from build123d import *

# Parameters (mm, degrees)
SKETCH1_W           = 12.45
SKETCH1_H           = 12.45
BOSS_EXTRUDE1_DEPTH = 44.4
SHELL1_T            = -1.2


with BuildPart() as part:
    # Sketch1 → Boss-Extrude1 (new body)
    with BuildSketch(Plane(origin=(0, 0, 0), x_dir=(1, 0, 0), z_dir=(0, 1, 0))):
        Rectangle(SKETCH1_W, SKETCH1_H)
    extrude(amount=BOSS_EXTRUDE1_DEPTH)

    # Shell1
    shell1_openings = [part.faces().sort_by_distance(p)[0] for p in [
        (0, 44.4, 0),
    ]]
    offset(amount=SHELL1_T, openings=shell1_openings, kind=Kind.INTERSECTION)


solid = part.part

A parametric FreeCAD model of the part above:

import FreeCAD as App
import Part
import Sketcher

V = App.Vector


def faces_at(feature, points):
    """Names of the faces that lie closest to the given points."""
    faces = feature.Shape.Faces
    near = lambda p: min(range(len(faces)), key=lambda i: faces[i].distToShape(Part.Vertex(*p))[0])
    return sorted({f"Face{near(p) + 1}" for p in points})

doc = App.newDocument("Part")
body = doc.addObject("PartDesign::Body", "Body")

# Sketch on XZ plane
sketch1 = body.newObject("Sketcher::SketchObject", "Sketch")
sketch1.AttachmentSupport = (doc.getObject("XZ_Plane"), [""])
sketch1.MapMode = "FlatFace"
sketch1.addGeometry([
    Part.LineSegment(V(-6, -6, 0), V(-6, 6, 0)),
    Part.LineSegment(V(-6, 6, 0), V(6, 6, 0)),
    Part.LineSegment(V(6, 6, 0), V(6, -6, 0)),
    Part.LineSegment(V(6, -6, 0), V(-6, -6, 0)),
], False)
sketch1.addConstraint([
    Sketcher.Constraint("Coincident", 0, 2, 1, 1),
    Sketcher.Constraint("Coincident", 1, 2, 2, 1),
    Sketcher.Constraint("Coincident", 2, 2, 3, 1),
    Sketcher.Constraint("Coincident", 3, 2, 0, 1),
    Sketcher.Constraint("Vertical", 0),
    Sketcher.Constraint("Horizontal", 1),
    Sketcher.Constraint("Vertical", 2),
    Sketcher.Constraint("Horizontal", 3),
    Sketcher.Constraint("Symmetric", 0, 2, 2, 2, -1, 1),
    Sketcher.Constraint("Equal", 3, 0),
    Sketcher.Constraint("DistanceX", 1, 1, 1, 2, 12.45),
])
pad1 = body.newObject("PartDesign::Pad", "Pad")
pad1.Profile = sketch1
pad1.Length = 44.4
pad1.Reversed = True
doc.recompute()

thickness = body.newObject("PartDesign::Thickness", "Thickness")
thickness.Base = (pad1, faces_at(pad1, [(0, 44.4, 0)]))
thickness.Value = 1.2
thickness.Reversed = True
thickness.Join = "Intersection"

doc.recompute()
